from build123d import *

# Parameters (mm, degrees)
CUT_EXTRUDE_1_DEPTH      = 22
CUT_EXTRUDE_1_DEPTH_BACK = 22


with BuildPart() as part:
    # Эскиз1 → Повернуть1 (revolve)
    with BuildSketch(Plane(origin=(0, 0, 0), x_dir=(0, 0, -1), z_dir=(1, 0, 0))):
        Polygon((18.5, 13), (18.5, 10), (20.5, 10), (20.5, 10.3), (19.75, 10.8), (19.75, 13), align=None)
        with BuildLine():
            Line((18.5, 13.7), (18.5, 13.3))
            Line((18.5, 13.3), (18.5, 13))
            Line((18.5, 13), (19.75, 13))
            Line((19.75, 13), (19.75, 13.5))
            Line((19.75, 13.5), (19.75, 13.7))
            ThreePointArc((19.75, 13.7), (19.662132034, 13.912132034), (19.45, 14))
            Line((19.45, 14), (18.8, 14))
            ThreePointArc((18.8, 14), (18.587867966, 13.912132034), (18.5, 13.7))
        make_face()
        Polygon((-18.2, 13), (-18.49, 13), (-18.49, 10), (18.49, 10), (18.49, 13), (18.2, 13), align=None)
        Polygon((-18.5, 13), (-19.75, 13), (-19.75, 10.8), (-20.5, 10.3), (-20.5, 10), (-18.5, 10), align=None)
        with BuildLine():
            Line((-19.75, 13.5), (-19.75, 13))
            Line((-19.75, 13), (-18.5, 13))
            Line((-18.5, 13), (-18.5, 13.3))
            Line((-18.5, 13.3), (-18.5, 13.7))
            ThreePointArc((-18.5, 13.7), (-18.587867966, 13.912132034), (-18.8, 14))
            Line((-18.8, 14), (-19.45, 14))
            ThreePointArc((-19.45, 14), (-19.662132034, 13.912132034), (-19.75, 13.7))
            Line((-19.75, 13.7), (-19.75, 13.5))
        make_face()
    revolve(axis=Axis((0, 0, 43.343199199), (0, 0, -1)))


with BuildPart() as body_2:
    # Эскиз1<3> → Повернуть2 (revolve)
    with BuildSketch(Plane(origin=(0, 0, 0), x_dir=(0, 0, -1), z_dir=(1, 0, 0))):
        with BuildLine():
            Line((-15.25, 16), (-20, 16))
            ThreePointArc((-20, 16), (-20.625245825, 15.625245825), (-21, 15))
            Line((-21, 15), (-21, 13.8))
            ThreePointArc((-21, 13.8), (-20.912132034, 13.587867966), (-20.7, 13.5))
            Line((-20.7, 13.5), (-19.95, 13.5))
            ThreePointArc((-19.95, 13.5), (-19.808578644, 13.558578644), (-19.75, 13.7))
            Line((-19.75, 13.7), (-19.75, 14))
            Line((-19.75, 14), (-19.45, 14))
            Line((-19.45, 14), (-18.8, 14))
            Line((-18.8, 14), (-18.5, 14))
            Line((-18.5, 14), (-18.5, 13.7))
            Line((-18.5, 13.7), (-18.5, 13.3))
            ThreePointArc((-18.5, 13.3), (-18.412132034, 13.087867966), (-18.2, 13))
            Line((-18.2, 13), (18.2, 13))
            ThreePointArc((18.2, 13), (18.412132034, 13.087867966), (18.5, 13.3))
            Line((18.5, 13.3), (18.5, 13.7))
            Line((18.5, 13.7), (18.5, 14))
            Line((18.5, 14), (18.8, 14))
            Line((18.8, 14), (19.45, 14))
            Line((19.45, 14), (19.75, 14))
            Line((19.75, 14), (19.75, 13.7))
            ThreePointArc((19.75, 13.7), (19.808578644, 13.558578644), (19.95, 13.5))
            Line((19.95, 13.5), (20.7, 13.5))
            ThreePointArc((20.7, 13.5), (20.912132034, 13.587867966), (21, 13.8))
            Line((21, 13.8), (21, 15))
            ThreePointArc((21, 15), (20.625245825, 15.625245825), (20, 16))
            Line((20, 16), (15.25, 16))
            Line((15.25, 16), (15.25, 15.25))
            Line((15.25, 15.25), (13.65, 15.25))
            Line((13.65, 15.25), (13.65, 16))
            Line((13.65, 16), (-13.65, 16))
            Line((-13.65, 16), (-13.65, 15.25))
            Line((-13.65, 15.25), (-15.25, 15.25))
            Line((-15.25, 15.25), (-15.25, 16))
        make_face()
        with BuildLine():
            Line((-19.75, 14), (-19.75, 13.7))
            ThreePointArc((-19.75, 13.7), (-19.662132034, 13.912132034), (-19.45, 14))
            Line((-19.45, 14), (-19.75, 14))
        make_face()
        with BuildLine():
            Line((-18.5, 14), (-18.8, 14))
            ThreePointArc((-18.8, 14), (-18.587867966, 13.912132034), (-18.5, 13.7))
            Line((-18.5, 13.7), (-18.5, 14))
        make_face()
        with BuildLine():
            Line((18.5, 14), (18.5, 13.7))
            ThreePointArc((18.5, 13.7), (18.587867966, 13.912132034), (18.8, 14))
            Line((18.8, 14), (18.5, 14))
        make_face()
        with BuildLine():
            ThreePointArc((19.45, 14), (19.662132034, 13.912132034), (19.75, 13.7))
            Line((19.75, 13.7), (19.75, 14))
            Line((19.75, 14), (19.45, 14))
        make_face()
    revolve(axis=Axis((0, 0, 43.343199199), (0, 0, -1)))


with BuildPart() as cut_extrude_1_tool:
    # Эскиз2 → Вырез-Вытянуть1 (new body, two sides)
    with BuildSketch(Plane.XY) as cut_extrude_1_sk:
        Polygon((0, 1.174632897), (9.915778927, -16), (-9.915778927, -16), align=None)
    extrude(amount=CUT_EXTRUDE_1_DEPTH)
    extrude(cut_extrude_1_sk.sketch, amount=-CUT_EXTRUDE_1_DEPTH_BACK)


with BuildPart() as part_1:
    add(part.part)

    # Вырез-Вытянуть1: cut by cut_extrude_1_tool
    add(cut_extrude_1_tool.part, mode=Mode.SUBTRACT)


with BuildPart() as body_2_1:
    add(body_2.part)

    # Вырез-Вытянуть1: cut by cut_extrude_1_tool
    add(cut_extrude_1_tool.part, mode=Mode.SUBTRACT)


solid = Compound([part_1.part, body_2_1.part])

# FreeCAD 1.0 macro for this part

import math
import FreeCAD as App
import Part
import Sketcher

V = App.Vector
Q = App.Units.Quantity

doc = App.newDocument("Part")
params = doc.addObject("Spreadsheet::Sheet", "Params")
for row, (alias, value) in enumerate([
    ("sketch1_radius", "0.3 mm"),
    ("sketch1_width", "3 mm"),
    ("sketch1_height", "2 mm"),
    ("sketch1_width2", "0.3 mm"),
    ("sketch1_width3", "2.9 mm"),
    ("revolution_angle", "360 deg"),
    ("sketch2_radius", "1.5 mm"),
    ("sketch2_radius2", "0.3 mm"),
    ("sketch2_radius3", "0.2 mm"),
    ("sketch2_width", "1.2 mm"),
    ("sketch2_width2", "0.4 mm"),
    ("revolution2_angle", "360 deg"),
    ("pad1_length", "22 mm"),
    ("pad1_length2", "22 mm"),
], start=1):
    params.set(f"A{row}", alias)
    params.set(f"B{row}", "=" + value)
    params.setAlias(f"B{row}", alias)

body = doc.addObject("PartDesign::Body", "Body")
body.AllowCompound = True

# Sketch on YZ plane
sketch1 = body.newObject("Sketcher::SketchObject", "Sketch")
sketch1.AttachmentSupport = (doc.getObject("YZ_Plane"), [""])
sketch1.MapMode = "FlatFace"
sketch1.addGeometry([
    Part.LineSegment(V(10, -18.5, 0), V(10, -20.5, 0)),  # 0
    Part.LineSegment(V(10, -20.5, 0), V(10.3, -20.5, 0)),  # 1
    Part.LineSegment(V(10.3, -20.5, 0), V(10.8, -19.75, 0)),  # 2
    Part.LineSegment(V(10.8, -19.75, 0), V(13.7, -19.75, 0)),  # 3
    Part.ArcOfCircle(Part.Circle(V(13.7, -19.45, 0), V(0, 0, 1), 0.3), math.radians(-90), math.radians(0)),  # 4
    Part.LineSegment(V(14, -19.45, 0), V(14, -18.8, 0)),  # 5
    Part.ArcOfCircle(Part.Circle(V(13.7, -18.8, 0), V(0, 0, 1), 0.3), math.radians(0), math.radians(90)),  # 6
    Part.LineSegment(V(13.7, -18.5, 0), V(10, -18.5, 0)),  # 7
    Part.LineSegment(V(13, 18.49, 0), V(10, 18.49, 0)),  # 8
    Part.LineSegment(V(10, 18.49, 0), V(10, -18.49, 0)),  # 9
    Part.LineSegment(V(10, -18.49, 0), V(13, -18.49, 0)),  # 10
    Part.LineSegment(V(13, -18.49, 0), V(13, 18.49, 0)),  # 11
    Part.LineSegment(V(10.8, 19.75, 0), V(10.3, 20.5, 0)),  # 12
    Part.LineSegment(V(10.3, 20.5, 0), V(10, 20.5, 0)),  # 13
    Part.LineSegment(V(10, 20.5, 0), V(10, 18.5, 0)),  # 14
    Part.LineSegment(V(10, 18.5, 0), V(13.7, 18.5, 0)),  # 15
    Part.ArcOfCircle(Part.Circle(V(13.7, 18.8, 0), V(0, 0, 1), 0.3), math.radians(-90), math.radians(0)),  # 16
    Part.LineSegment(V(14, 18.8, 0), V(14, 19.45, 0)),  # 17
    Part.ArcOfCircle(Part.Circle(V(13.7, 19.45, 0), V(0, 0, 1), 0.3), math.radians(0), math.radians(90)),  # 18
    Part.LineSegment(V(13.7, 19.75, 0), V(10.8, 19.75, 0)),  # 19
], False)
sketch1.addConstraint([
    Sketcher.Constraint("Coincident", 0, 2, 1, 1),
    Sketcher.Constraint("Coincident", 1, 2, 2, 1),
    Sketcher.Constraint("Coincident", 2, 2, 3, 1),
    Sketcher.Constraint("Tangent", 3, 2, 4, 1),
    Sketcher.Constraint("Tangent", 4, 2, 5, 1),
    Sketcher.Constraint("Tangent", 5, 2, 6, 1),
    Sketcher.Constraint("Tangent", 6, 2, 7, 1),
    Sketcher.Constraint("Coincident", 7, 2, 0, 1),
    Sketcher.Constraint("Coincident", 8, 2, 9, 1),
    Sketcher.Constraint("Coincident", 9, 2, 10, 1),
    Sketcher.Constraint("Coincident", 10, 2, 11, 1),
    Sketcher.Constraint("Coincident", 11, 2, 8, 1),
    Sketcher.Constraint("Coincident", 12, 2, 13, 1),
    Sketcher.Constraint("Coincident", 13, 2, 14, 1),
    Sketcher.Constraint("Coincident", 14, 2, 15, 1),
    Sketcher.Constraint("Tangent", 15, 2, 16, 1),
    Sketcher.Constraint("Tangent", 16, 2, 17, 1),
    Sketcher.Constraint("Tangent", 17, 2, 18, 1),
    Sketcher.Constraint("Tangent", 18, 2, 19, 1),
    Sketcher.Constraint("Coincident", 19, 2, 12, 1),
    Sketcher.Constraint("Vertical", 0),
    Sketcher.Constraint("Horizontal", 1),
    Sketcher.Constraint("Horizontal", 3),
    Sketcher.Constraint("Vertical", 5),
    Sketcher.Constraint("Horizontal", 7),
    Sketcher.Constraint("Horizontal", 8),
    Sketcher.Constraint("Vertical", 9),
    Sketcher.Constraint("Horizontal", 10),
    Sketcher.Constraint("Vertical", 11),
    Sketcher.Constraint("Horizontal", 13),
    Sketcher.Constraint("Vertical", 14),
    Sketcher.Constraint("Horizontal", 15),
    Sketcher.Constraint("Vertical", 17),
    Sketcher.Constraint("Horizontal", 19),
    Sketcher.Constraint("Equal", 4, 6),
    Sketcher.Constraint("Equal", 6, 16),
    Sketcher.Constraint("Equal", 16, 18),
    Sketcher.Constraint("Symmetric", 6, 3, 16, 3, -1),
    Sketcher.Constraint("Symmetric", 1, 2, 12, 2, -1),
    Sketcher.Constraint("Symmetric", 2, 2, 19, 2, -1),
    Sketcher.Constraint("Vertical", 7, 2, 8, 2),
    Sketcher.Constraint("Vertical", 9, 2, 13, 2),
    Sketcher.Constraint("Radius", 4, 0.3),
    Sketcher.Constraint("DistanceX", 8, 2, 8, 1, 3.0),
    Sketcher.Constraint("DistanceY", 0, 2, 0, 1, 2.0),
    Sketcher.Constraint("DistanceX", 1, 1, 1, 2, 0.3),
    Sketcher.Constraint("DistanceX", 3, 1, 3, 2, 2.9),
    Sketcher.Constraint("DistanceX", 7, 2, 7, 1, 3.7),
    Sketcher.Constraint("DistanceX", -1, 1, 0, 2, 10.0),
    Sketcher.Constraint("DistanceY", 5, 1, 5, 2, 0.65),
    Sketcher.Constraint("DistanceY", 9, 2, 9, 1, 36.98),
    Sketcher.Constraint("DistanceY", 6, 3, -1, 1, 18.8),
    Sketcher.Constraint("DistanceY", -1, 1, 8, 2, 18.49),
])
sketch1.setExpression("Constraints[42]", "Params.sketch1_radius")
sketch1.setExpression("Constraints[43]", "Params.sketch1_width")
sketch1.setExpression("Constraints[44]", "Params.sketch1_height")
sketch1.setExpression("Constraints[45]", "Params.sketch1_width2")
sketch1.setExpression("Constraints[46]", "Params.sketch1_width3")
revolution = body.newObject("PartDesign::Revolution", "Revolution")
revolution.Profile = sketch1
revolution.ReferenceAxis = (sketch1, ["V_Axis"])
revolution.setExpression("Angle", "Params.revolution_angle")
body2 = doc.addObject("PartDesign::Body", "Body001")

# Sketch on YZ plane
sketch2 = body2.newObject("Sketcher::SketchObject", "Sketch001")
sketch2.AttachmentSupport = (doc.getObject("YZ_Plane001"), [""])
sketch2.MapMode = "FlatFace"
sketch2.addGeometry([
    Part.LineSegment(V(16, 15.25, 0), V(16, 20, 0)),  # 0
    Part.ArcOfCircle(Part.Circle(V(14.56, 19.56, 0), V(0, 0, 1), 1.5), math.radians(17), math.radians(73)),  # 1
    Part.LineSegment(V(15, 21, 0), V(13.8, 21, 0)),  # 2
    Part.ArcOfCircle(Part.Circle(V(13.8, 20.7, 0), V(0, 0, 1), 0.3), math.radians(90), math.radians(180)),  # 3
    Part.LineSegment(V(13.5, 20.7, 0), V(13.5, 19.95, 0)),  # 4
    Part.ArcOfCircle(Part.Circle(V(13.7, 19.95, 0), V(0, 0, 1), 0.2), math.radians(-180), math.radians(-90)),  # 5
    Part.ArcOfCircle(Part.Circle(V(13.7, 19.45, 0), V(0, 0, 1), 0.3), math.radians(0), math.radians(90)),  # 6
    Part.LineSegment(V(14, 19.45, 0), V(14, 18.8, 0)),  # 7
    Part.ArcOfCircle(Part.Circle(V(13.7, 18.8, 0), V(0, 0, 1), 0.3), math.radians(-90), math.radians(0)),  # 8
    Part.LineSegment(V(13.7, 18.5, 0), V(13.3, 18.5, 0)),  # 9
    Part.ArcOfCircle(Part.Circle(V(13.3, 18.2, 0), V(0, 0, 1), 0.3), math.radians(90), math.radians(180)),  # 10
    Part.LineSegment(V(13, 18.2, 0), V(13, -18.2, 0)),  # 11
    Part.ArcOfCircle(Part.Circle(V(13.3, -18.2, 0), V(0, 0, 1), 0.3), math.radians(-180), math.radians(-90)),  # 12
    Part.LineSegment(V(13.3, -18.5, 0), V(13.7, -18.5, 0)),  # 13
    Part.ArcOfCircle(Part.Circle(V(13.7, -18.8, 0), V(0, 0, 1), 0.3), math.radians(0), math.radians(90)),  # 14
    Part.LineSegment(V(14, -18.8, 0), V(14, -19.45, 0)),  # 15
    Part.ArcOfCircle(Part.Circle(V(13.7, -19.45, 0), V(0, 0, 1), 0.3), math.radians(-90), math.radians(0)),  # 16
    Part.ArcOfCircle(Part.Circle(V(13.7, -19.95, 0), V(0, 0, 1), 0.2), math.radians(90), math.radians(180)),  # 17
    Part.LineSegment(V(13.5, -19.95, 0), V(13.5, -20.7, 0)),  # 18
    Part.ArcOfCircle(Part.Circle(V(13.8, -20.7, 0), V(0, 0, 1), 0.3), math.radians(-180), math.radians(-90)),  # 19
    Part.LineSegment(V(13.8, -21, 0), V(15, -21, 0)),  # 20
    Part.ArcOfCircle(Part.Circle(V(14.56, -19.56, 0), V(0, 0, 1), 1.5), math.radians(-73), math.radians(-17)),  # 21
    Part.LineSegment(V(16, -20, 0), V(16, -15.25, 0)),  # 22
    Part.LineSegment(V(16, -15.25, 0), V(15.25, -15.25, 0)),  # 23
    Part.LineSegment(V(15.25, -15.25, 0), V(15.25, -13.65, 0)),  # 24
    Part.LineSegment(V(15.25, -13.65, 0), V(16, -13.65, 0)),  # 25
    Part.LineSegment(V(16, -13.65, 0), V(16, 13.65, 0)),  # 26
    Part.LineSegment(V(16, 13.65, 0), V(15.25, 13.65, 0)),  # 27
    Part.LineSegment(V(15.25, 13.65, 0), V(15.25, 15.25, 0)),  # 28
    Part.LineSegment(V(15.25, 15.25, 0), V(16, 15.25, 0)),  # 29
], False)
sketch2.addConstraint([
    Sketcher.Constraint("Coincident", 0, 2, 1, 1),
    Sketcher.Constraint("Coincident", 1, 2, 2, 1),
    Sketcher.Constraint("Tangent", 2, 2, 3, 1),
    Sketcher.Constraint("Tangent", 3, 2, 4, 1),
    Sketcher.Constraint("Tangent", 4, 2, 5, 1),
    Sketcher.Constraint("Tangent", 5, 2, 6, 2),
    Sketcher.Constraint("Tangent", 6, 1, 7, 1),
    Sketcher.Constraint("Tangent", 7, 2, 8, 2),
    Sketcher.Constraint("Tangent", 8, 1, 9, 1),
    Sketcher.Constraint("Tangent", 9, 2, 10, 1),
    Sketcher.Constraint("Tangent", 10, 2, 11, 1),
    Sketcher.Constraint("Tangent", 11, 2, 12, 1),
    Sketcher.Constraint("Tangent", 12, 2, 13, 1),
    Sketcher.Constraint("Tangent", 13, 2, 14, 2),
    Sketcher.Constraint("Tangent", 14, 1, 15, 1),
    Sketcher.Constraint("Tangent", 15, 2, 16, 2),
    Sketcher.Constraint("Tangent", 16, 1, 17, 1),
    Sketcher.Constraint("Tangent", 17, 2, 18, 1),
    Sketcher.Constraint("Tangent", 18, 2, 19, 1),
    Sketcher.Constraint("Tangent", 19, 2, 20, 1),
    Sketcher.Constraint("Coincident", 20, 2, 21, 1),
    Sketcher.Constraint("Coincident", 21, 2, 22, 1),
    Sketcher.Constraint("Coincident", 22, 2, 23, 1),
    Sketcher.Constraint("Coincident", 23, 2, 24, 1),
    Sketcher.Constraint("Coincident", 24, 2, 25, 1),
    Sketcher.Constraint("Coincident", 25, 2, 26, 1),
    Sketcher.Constraint("Coincident", 26, 2, 27, 1),
    Sketcher.Constraint("Coincident", 27, 2, 28, 1),
    Sketcher.Constraint("Coincident", 28, 2, 29, 1),
    Sketcher.Constraint("Coincident", 29, 2, 0, 1),
    Sketcher.Constraint("Vertical", 0),
    Sketcher.Constraint("Horizontal", 2),
    Sketcher.Constraint("Vertical", 4),
    Sketcher.Constraint("Vertical", 7),
    Sketcher.Constraint("Horizontal", 9),
    Sketcher.Constraint("Vertical", 11),
    Sketcher.Constraint("Horizontal", 13),
    Sketcher.Constraint("Vertical", 15),
    Sketcher.Constraint("Vertical", 18),
    Sketcher.Constraint("Horizontal", 20),
    Sketcher.Constraint("Vertical", 22),
    Sketcher.Constraint("Horizontal", 23),
    Sketcher.Constraint("Vertical", 24),
    Sketcher.Constraint("Horizontal", 25),
    Sketcher.Constraint("Vertical", 26),
    Sketcher.Constraint("Horizontal", 27),
    Sketcher.Constraint("Vertical", 28),
    Sketcher.Constraint("Horizontal", 29),
    Sketcher.Constraint("Equal", 3, 6),
    Sketcher.Constraint("Equal", 6, 8),
    Sketcher.Constraint("Equal", 8, 10),
    Sketcher.Constraint("Equal", 10, 12),
    Sketcher.Constraint("Equal", 12, 14),
    Sketcher.Constraint("Equal", 14, 16),
    Sketcher.Constraint("Equal", 5, 17),
    Sketcher.Constraint("Equal", 16, 19),
    Sketcher.Constraint("Equal", 1, 21),
    Sketcher.Constraint("Symmetric", 8, 3, 14, 3, -1),
    Sketcher.Constraint("Symmetric", 5, 3, 17, 3, -1),
    Sketcher.Constraint("Symmetric", 1, 3, 21, 3, -1),
    Sketcher.Constraint("Symmetric", 24, 2, 27, 2, -1),
    Sketcher.Constraint("Symmetric", 22, 2, 29, 2, -1),
    Sketcher.Constraint("Vertical", 5, 3, 6, 3),
    Sketcher.Constraint("Vertical", 1, 2, 20, 2),
    Sketcher.Constraint("Vertical", 22, 2, 25, 2),
    Sketcher.Constraint("Equal", 29, 4),
    Sketcher.Constraint("Radius", 1, 1.5),
    Sketcher.Constraint("Radius", 3, 0.3),
    Sketcher.Constraint("Radius", 5, 0.2),
    Sketcher.Constraint("DistanceX", 2, 2, 2, 1, 1.2),
    Sketcher.Constraint("DistanceX", 9, 2, 9, 1, 0.4),
    Sketcher.Constraint("DistanceY", 11, 2, 11, 1, 36.4),
    Sketcher.Constraint("DistanceY", 24, 1, 24, 2, 1.6),
    Sketcher.Constraint("DistanceY", 26, 1, 26, 2, 27.3),
    Sketcher.Constraint("DistanceX", -1, 1, 0, 2, 16.0),
    Sketcher.Constraint("DistanceY", -1, 1, 0, 2, 20.0),
    Sketcher.Constraint("DistanceX", -1, 1, 1, 2, 15.0),
    Sketcher.Constraint("DistanceY", -1, 1, 1, 2, 21.0),
    Sketcher.Constraint("DistanceX", 23, 2, 23, 1, 0.75),
])
sketch2.setExpression("Constraints[66]", "Params.sketch2_radius")
sketch2.setExpression("Constraints[67]", "Params.sketch2_radius2")
sketch2.setExpression("Constraints[68]", "Params.sketch2_radius3")
sketch2.setExpression("Constraints[69]", "Params.sketch2_width")
sketch2.setExpression("Constraints[70]", "Params.sketch2_width2")
revolution2 = body2.newObject("PartDesign::Revolution", "Revolution001")
revolution2.Profile = sketch2
revolution2.ReferenceAxis = (sketch2, ["V_Axis"])
revolution2.setExpression("Angle", "Params.revolution2_angle")
body3 = doc.addObject("PartDesign::Body", "Body002")

# Sketch on XY plane
sketch3 = body3.newObject("Sketcher::SketchObject", "Sketch002")
sketch3.AttachmentSupport = (doc.getObject("XY_Plane002"), [""])
sketch3.MapMode = "FlatFace"
sketch3.addGeometry([
    Part.LineSegment(V(10, -16, 0), V(0, 1, 0)),
    Part.LineSegment(V(0, 1, 0), V(-10, -16, 0)),
    Part.LineSegment(V(-10, -16, 0), V(10, -16, 0)),
], False)
sketch3.addConstraint([
    Sketcher.Constraint("Coincident", 0, 2, 1, 1),
    Sketcher.Constraint("Coincident", 1, 2, 2, 1),
    Sketcher.Constraint("Coincident", 2, 2, 0, 1),
    Sketcher.Constraint("Horizontal", 2),
    Sketcher.Constraint("PointOnObject", 0, 2, -2),
    Sketcher.Constraint("Equal", 0, 1),
    Sketcher.Constraint("Angle", 0, Q("120 deg")),
    Sketcher.Constraint("DistanceY", 1, 2, -1, 1, 16.0),
    Sketcher.Constraint("DistanceX", 2, 1, 2, 2, 19.831558),
])
pad1 = body3.newObject("PartDesign::Pad", "Pad")
pad1.Profile = sketch3
pad1.Type = "TwoLengths"
pad1.setExpression("Length", "Params.pad1_length")
pad1.setExpression("Length2", "Params.pad1_length2")
body.AllowCompound = True
doc.recompute()

body4 = doc.addObject("PartDesign::Body", "Body003")
body4.BaseFeature = body3
boolean = body.newObject("PartDesign::Boolean", "Boolean")
boolean.Type = "Cut"
boolean.addObjects([body4])
doc.recompute()

boolean2 = body2.newObject("PartDesign::Boolean", "Boolean001")
boolean2.Type = "Cut"
boolean2.addObjects([body3])

doc.recompute()
